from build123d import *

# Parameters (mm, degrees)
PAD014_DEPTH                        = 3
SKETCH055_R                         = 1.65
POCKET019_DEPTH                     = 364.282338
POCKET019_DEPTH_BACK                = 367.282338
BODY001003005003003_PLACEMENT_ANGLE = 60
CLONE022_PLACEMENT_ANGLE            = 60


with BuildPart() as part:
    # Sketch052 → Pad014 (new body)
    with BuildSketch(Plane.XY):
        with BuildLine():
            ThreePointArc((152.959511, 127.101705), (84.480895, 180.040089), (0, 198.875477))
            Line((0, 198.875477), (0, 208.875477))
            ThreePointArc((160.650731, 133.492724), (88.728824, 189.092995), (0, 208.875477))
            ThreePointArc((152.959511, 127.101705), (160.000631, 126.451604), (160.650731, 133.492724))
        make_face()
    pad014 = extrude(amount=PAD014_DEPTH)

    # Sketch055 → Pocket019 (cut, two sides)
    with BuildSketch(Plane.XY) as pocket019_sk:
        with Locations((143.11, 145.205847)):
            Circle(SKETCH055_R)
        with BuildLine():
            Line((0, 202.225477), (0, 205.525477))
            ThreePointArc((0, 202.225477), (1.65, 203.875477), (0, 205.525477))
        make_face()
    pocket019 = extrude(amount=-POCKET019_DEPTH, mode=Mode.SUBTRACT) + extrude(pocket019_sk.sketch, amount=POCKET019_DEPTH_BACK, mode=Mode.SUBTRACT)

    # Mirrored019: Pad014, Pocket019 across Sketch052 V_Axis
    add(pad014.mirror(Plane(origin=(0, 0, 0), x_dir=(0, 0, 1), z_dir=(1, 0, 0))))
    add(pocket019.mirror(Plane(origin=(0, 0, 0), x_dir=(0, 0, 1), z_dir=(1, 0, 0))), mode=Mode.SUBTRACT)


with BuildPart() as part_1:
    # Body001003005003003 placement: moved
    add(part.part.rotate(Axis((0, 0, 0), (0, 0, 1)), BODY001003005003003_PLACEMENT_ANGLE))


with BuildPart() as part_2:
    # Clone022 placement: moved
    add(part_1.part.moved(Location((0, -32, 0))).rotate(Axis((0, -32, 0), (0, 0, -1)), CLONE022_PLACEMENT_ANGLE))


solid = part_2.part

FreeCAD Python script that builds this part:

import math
import FreeCAD as App
import Part
import Sketcher
from FreeCAD import Vector

doc = App.newDocument("Part")
body = doc.addObject("PartDesign::Body", "Body")

sketch1 = doc.addObject("Sketcher::SketchObject", "Sketch")
body.addObject(sketch1)
sketch1.AttachmentSupport = (doc.XY_Plane, [""])
sketch1.MapMode = "FlatFace"
sketch1.addGeometry([
    Part.ArcOfCircle(Part.Circle(Vector(0, 0, 0), Vector(0, 0, 1), 198.9), math.radians(40), math.radians(90)),
    Part.ArcOfCircle(Part.Circle(Vector(156.8, 130.3, 0), Vector(0, 0, 1), 5), math.radians(-140), math.radians(40)),
    Part.ArcOfCircle(Part.Circle(Vector(0, 0, 0), Vector(0, 0, 1), 208.9), math.radians(40), math.radians(90)),
    Part.LineSegment(Vector(0, 208.9, 0), Vector(0, 198.9, 0)),
], False)
sketch1.addConstraint([
    Sketcher.Constraint("Tangent", 0, 1, 1, 1),
    Sketcher.Constraint("Tangent", 1, 2, 2, 1),
    Sketcher.Constraint("Coincident", 2, 2, 3, 1),
    Sketcher.Constraint("Coincident", 3, 2, 0, 2),
    Sketcher.Constraint("Vertical", 3),
    Sketcher.Constraint("Coincident", 0, 3, -1, 1),
    Sketcher.Constraint("Coincident", 2, 3, -1, 1),
    Sketcher.Constraint("PointOnObject", 2, 2, -2),
    Sketcher.Constraint("Radius", 1, 5.0),
    Sketcher.Constraint("Radius", 0, 198.87548),
    Sketcher.Constraint("DistanceY", 2, 3, 0, 1, 127.101701),
])
pad1 = doc.addObject("PartDesign::Pad", "Pad")
body.addObject(pad1)
pad1.Profile = sketch1
pad1.Length = 3

sketch2 = doc.addObject("Sketcher::SketchObject", "Sketch001")
body.addObject(sketch2)
sketch2.AttachmentSupport = (doc.XY_Plane, [""])
sketch2.MapMode = "FlatFace"
sketch2.addGeometry([
    Part.Circle(Vector(143.1, 145.2, 0), Vector(0, 0, 1), 1.6),
    Part.LineSegment(Vector(0, 205.5, 0), Vector(0, 202.2, 0)),
    Part.ArcOfCircle(Part.Circle(Vector(0, 203.9, 0), Vector(0, 0, 1), 1.6), math.radians(-90), math.radians(90)),
], False)
sketch2.addConstraint([
    Sketcher.Constraint("Coincident", 1, 1, 2, 2),
    Sketcher.Constraint("Coincident", 2, 1, 1, 2),
    Sketcher.Constraint("Vertical", 1),
    Sketcher.Constraint("Equal", 0, 2),
    Sketcher.Constraint("PointOnObject", 2, 3, -2),
    Sketcher.Constraint("PointOnObject", 1, 1, -2),
    Sketcher.Constraint("Diameter", 0, 3.3),
    Sketcher.Constraint("DistanceX", -1, 1, 0, 3, 143.11),
    Sketcher.Constraint("DistanceY", 0, 3, 2, 3, 58.66963),
    Sketcher.Constraint("DistanceY", -1, 1, 0, 3, 145.205847),
])
pocket1 = doc.addObject("PartDesign::Pocket", "Pocket")
body.addObject(pocket1)
pocket1.Profile = sketch2
pocket1.Type = "ThroughAll"
pocket1.Midplane = True
doc.recompute()

mirrored = doc.addObject("PartDesign::Mirrored", "Mirrored")
body.addObject(mirrored)
mirrored.Originals = [pad1, pocket1]
mirrored.MirrorPlane = (doc.YZ_Plane, [""])
body.Tip = mirrored
body2 = doc.addObject("PartDesign::Body", "Body001")
doc.recompute()

body.Placement = App.Placement(Vector(0, 0, 0), App.Rotation(Vector(0, 0, 1), 60))
boolean = doc.addObject("PartDesign::Boolean", "Boolean")
body2.addObject(boolean)
boolean.Type = "Fuse"
boolean.addObjects([body])
body3 = doc.addObject("PartDesign::Body", "Body002")
doc.recompute()

body2.Placement = App.Placement(Vector(0, -32, 0), App.Rotation(Vector(0, 0, -1), 60))
boolean2 = doc.addObject("PartDesign::Boolean", "Boolean001")
body3.addObject(boolean2)
boolean2.Type = "Fuse"
boolean2.addObjects([body2])

doc.recompute()
